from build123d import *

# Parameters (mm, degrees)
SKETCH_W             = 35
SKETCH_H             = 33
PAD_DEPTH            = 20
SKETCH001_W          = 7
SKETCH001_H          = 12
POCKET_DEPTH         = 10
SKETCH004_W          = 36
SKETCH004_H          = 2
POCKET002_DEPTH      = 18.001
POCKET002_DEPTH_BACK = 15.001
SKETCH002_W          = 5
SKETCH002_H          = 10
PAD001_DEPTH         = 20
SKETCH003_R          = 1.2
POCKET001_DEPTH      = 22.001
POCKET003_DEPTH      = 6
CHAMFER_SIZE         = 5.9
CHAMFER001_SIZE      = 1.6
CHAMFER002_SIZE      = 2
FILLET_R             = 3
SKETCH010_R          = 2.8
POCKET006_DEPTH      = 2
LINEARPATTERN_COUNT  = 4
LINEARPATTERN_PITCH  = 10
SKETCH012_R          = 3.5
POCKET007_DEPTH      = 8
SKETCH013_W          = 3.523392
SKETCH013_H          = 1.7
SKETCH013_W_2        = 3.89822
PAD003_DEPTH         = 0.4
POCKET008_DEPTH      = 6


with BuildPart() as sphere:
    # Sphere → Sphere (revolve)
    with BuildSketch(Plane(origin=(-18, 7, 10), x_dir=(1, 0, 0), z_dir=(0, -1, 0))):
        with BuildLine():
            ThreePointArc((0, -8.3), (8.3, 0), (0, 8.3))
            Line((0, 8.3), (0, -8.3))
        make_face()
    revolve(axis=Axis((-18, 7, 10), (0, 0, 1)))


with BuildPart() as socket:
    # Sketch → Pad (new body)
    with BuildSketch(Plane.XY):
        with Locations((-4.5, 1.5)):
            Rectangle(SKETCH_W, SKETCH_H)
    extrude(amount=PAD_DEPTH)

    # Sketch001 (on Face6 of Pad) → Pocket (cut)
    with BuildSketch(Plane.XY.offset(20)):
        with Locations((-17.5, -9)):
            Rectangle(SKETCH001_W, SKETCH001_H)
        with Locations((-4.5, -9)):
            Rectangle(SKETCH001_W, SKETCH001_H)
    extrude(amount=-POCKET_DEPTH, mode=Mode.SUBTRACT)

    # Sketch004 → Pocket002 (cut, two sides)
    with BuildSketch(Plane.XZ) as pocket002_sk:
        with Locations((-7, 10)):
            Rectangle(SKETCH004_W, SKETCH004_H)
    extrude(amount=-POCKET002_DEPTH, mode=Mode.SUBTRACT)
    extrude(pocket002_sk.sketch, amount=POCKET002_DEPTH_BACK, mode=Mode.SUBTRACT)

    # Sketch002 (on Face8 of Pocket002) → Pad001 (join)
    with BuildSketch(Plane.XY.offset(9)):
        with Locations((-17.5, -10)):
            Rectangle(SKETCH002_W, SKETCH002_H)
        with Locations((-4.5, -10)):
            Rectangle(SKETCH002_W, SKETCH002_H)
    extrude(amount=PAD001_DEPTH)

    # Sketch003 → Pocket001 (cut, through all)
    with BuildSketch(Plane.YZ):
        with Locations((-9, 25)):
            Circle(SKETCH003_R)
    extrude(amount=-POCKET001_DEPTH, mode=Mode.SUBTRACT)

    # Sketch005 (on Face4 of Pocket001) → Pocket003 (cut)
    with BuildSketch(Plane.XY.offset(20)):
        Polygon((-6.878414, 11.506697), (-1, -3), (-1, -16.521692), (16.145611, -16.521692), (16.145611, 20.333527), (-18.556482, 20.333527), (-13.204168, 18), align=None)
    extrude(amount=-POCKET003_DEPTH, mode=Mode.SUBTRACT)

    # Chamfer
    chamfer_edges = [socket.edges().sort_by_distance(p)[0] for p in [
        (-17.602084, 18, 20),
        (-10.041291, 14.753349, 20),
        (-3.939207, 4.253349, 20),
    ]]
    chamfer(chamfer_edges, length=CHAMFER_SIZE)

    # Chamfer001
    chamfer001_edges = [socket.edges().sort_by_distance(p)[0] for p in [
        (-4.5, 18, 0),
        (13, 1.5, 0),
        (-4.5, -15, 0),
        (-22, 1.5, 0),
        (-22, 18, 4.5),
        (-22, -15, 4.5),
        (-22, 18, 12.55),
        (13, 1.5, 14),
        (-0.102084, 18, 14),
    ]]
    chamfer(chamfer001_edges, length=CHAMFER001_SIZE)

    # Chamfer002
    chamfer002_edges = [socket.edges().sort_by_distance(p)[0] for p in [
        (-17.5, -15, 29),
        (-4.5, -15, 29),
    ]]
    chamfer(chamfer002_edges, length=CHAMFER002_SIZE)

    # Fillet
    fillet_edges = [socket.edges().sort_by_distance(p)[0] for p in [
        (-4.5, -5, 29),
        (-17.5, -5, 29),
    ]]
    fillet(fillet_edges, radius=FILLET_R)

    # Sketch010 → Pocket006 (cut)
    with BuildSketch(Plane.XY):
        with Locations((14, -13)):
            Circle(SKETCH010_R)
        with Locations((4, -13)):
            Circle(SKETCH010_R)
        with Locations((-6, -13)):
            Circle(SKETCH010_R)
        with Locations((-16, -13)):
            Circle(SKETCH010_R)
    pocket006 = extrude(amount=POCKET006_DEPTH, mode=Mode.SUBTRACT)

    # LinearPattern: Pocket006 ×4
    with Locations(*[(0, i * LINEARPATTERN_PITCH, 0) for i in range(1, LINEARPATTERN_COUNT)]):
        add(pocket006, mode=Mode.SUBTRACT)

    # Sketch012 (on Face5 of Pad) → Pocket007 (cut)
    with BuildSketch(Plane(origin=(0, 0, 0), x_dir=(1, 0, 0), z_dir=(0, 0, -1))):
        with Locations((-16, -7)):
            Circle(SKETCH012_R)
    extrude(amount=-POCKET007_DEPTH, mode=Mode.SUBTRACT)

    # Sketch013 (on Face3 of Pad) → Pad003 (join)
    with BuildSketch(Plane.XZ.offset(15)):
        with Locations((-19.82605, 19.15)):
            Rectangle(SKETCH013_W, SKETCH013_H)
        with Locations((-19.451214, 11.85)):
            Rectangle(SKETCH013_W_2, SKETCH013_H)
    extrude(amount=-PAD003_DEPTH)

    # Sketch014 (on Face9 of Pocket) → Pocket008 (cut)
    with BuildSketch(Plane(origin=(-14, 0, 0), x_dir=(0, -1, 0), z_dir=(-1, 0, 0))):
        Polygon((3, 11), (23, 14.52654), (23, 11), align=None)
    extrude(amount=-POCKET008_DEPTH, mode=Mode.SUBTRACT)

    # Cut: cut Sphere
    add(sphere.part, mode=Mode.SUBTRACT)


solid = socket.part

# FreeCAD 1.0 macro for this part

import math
import FreeCAD as App
import Part
import Sketcher

V = App.Vector
Q = App.Units.Quantity


def edges_at(feature, points):
    """Names of the edges that pass closest to the given points."""
    edges = feature.Shape.Edges
    near = lambda p: min(range(len(edges)), key=lambda i: edges[i].distToShape(Part.Vertex(*p))[0])
    return sorted({f"Edge{near(p) + 1}" for p in points})


def add_polygon(sketch, points):
    """Adds a closed chain of lines whose ends are joined by coincident constraints."""
    first, n = sketch.GeometryCount, len(points)
    for a, b in zip(points, points[1:] + points[:1]):
        sketch.addGeometry(Part.LineSegment(App.Vector(*a, 0), App.Vector(*b, 0)), False)
    for i in range(n):
        sketch.addConstraint(Sketcher.Constraint("Coincident", first + i, 2, first + (i + 1) % n, 1))

doc = App.newDocument("Part")
body = doc.addObject("PartDesign::Body", "Body")

# Sketch on XZ plane
sketch1 = doc.addObject("Sketcher::SketchObject", "Sketch")
body.addObject(sketch1)
sketch1.AttachmentSupport = (doc.XZ_Plane, [""])
sketch1.MapMode = "FlatFace"
sketch1.AttachmentOffset = App.Placement(V(0, 0, -7), App.Rotation())
sketch1.addGeometry([
    Part.ArcOfCircle(Part.Circle(V(-18, 10, 0), V(0, 0, 1), 8), math.radians(-90), math.radians(90)),
    Part.LineSegment(V(-18, 18, 0), V(-18, 2, 0)),
], False)
sketch1.addGeometry(Part.LineSegment(V(-18, 2, 0), V(-18, 18, 0)), True)  # axis
sketch1.addConstraint([
    Sketcher.Constraint("Coincident", 0, 1, 1, 2),
    Sketcher.Constraint("Coincident", 1, 1, 0, 2),
    Sketcher.Constraint("Vertical", 1),
    Sketcher.Constraint("Vertical", 2),
    Sketcher.Constraint("Coincident", 2, 1, 0, 1),
    Sketcher.Constraint("Equal", 1, 2),
    Sketcher.Constraint("Radius", 0, Q("8.3 mm")),
    Sketcher.Constraint("DistanceX", 0, 3, -1, 1, Q("18 mm")),
    Sketcher.Constraint("DistanceY", -1, 1, 0, 3, Q("10 mm")),
    Sketcher.Constraint("DistanceX", 0, 1, -1, 1, Q("18 mm")),
])
revolution = doc.addObject("PartDesign::Revolution", "Revolution")
body.addObject(revolution)
revolution.Profile = sketch1
revolution.ReferenceAxis = (sketch1, ["Axis0"])
revolution.Angle = 360
body2 = doc.addObject("PartDesign::Body", "Body001")

# Sketch on XY plane
sketch2 = doc.addObject("Sketcher::SketchObject", "Sketch001")
body2.addObject(sketch2)
sketch2.AttachmentSupport = (doc.getObject("XY_Plane001"), [""])
sketch2.MapMode = "FlatFace"
add_polygon(sketch2, [(-22, 18), (-22, -15), (13, -15), (13, 18)])  # lines 0-3
sketch2.addConstraint([
    Sketcher.Constraint("Vertical", 0),
    Sketcher.Constraint("Horizontal", 1),
    Sketcher.Constraint("Vertical", 2),
    Sketcher.Constraint("Horizontal", 3),
    Sketcher.Constraint("DistanceX", 1, 1, 1, 2, Q("35 mm")),
    Sketcher.Constraint("DistanceY", 0, 2, 0, 1, Q("33 mm")),
    Sketcher.Constraint("DistanceX", 0, 2, -1, 1, Q("22 mm")),
    Sketcher.Constraint("DistanceY", 0, 2, -1, 1, Q("15 mm")),
])
pad1 = doc.addObject("PartDesign::Pad", "Pad")
body2.addObject(pad1)
pad1.Profile = sketch2
pad1.Length = 20

# Sketch on XY plane
sketch3 = doc.addObject("Sketcher::SketchObject", "Sketch002")
body2.addObject(sketch3)
sketch3.AttachmentSupport = (doc.getObject("XY_Plane001"), [""])
sketch3.MapMode = "FlatFace"
sketch3.AttachmentOffset = App.Placement(V(0, 0, 20), App.Rotation())
add_polygon(sketch3, [(-21, -3), (-21, -15), (-14, -15), (-14, -3)])  # lines 0-3
add_polygon(sketch3, [(-8, -3), (-8, -15), (-1, -15), (-1, -3)])  # lines 4-7
sketch3.addConstraint([
    Sketcher.Constraint("Vertical", 0),
    Sketcher.Constraint("Horizontal", 1),
    Sketcher.Constraint("Vertical", 2),
    Sketcher.Constraint("Horizontal", 3),
    Sketcher.Constraint("Vertical", 4),
    Sketcher.Constraint("Horizontal", 5),
    Sketcher.Constraint("Vertical", 6),
    Sketcher.Constraint("Horizontal", 7),
    Sketcher.Constraint("Horizontal", 1, 2, 4, 2),
    Sketcher.Constraint("Horizontal", 3, 2, 6, 2),
    Sketcher.Constraint("Equal", 3, 5),
    Sketcher.Constraint("DistanceX", 1, 1, 1, 2, Q("7 mm")),
    Sketcher.Constraint("DistanceY", 0, 2, 0, 1, Q("12 mm")),
    Sketcher.Constraint("DistanceX", 0, 2, -1, 1, Q("21 mm")),
    Sketcher.Constraint("DistanceY", 0, 2, -1, 1, Q("15 mm")),
    Sketcher.Constraint("DistanceX", 4, 2, -1, 1, Q("8 mm")),
])
pocket1 = doc.addObject("PartDesign::Pocket", "Pocket")
body2.addObject(pocket1)
pocket1.Profile = sketch3
pocket1.Length = 10

# Sketch on XZ plane
sketch4 = doc.addObject("Sketcher::SketchObject", "Sketch003")
body2.addObject(sketch4)
sketch4.AttachmentSupport = (doc.getObject("XZ_Plane001"), [""])
sketch4.MapMode = "FlatFace"
add_polygon(sketch4, [(-25, 11), (-25, 9), (11, 9), (11, 11)])  # lines 0-3
sketch4.addConstraint([
    Sketcher.Constraint("Vertical", 0),
    Sketcher.Constraint("Horizontal", 1),
    Sketcher.Constraint("Vertical", 2),
    Sketcher.Constraint("Horizontal", 3),
    Sketcher.Constraint("DistanceX", 1, 1, 1, 2, Q("36 mm")),
    Sketcher.Constraint("DistanceY", 0, 2, 0, 1, Q("2 mm")),
    Sketcher.Constraint("DistanceX", 0, 2, -1, 1, Q("25 mm")),
    Sketcher.Constraint("DistanceY", -1, 1, 0, 2, Q("9 mm")),
])
pocket2 = doc.addObject("PartDesign::Pocket", "Pocket001")
body2.addObject(pocket2)
pocket2.Profile = sketch4
pocket2.Type = "ThroughAll"
pocket2.Midplane = True

# Sketch on XY plane
sketch5 = doc.addObject("Sketcher::SketchObject", "Sketch004")
body2.addObject(sketch5)
sketch5.AttachmentSupport = (doc.getObject("XY_Plane001"), [""])
sketch5.MapMode = "FlatFace"
sketch5.AttachmentOffset = App.Placement(V(0, 0, 9), App.Rotation())
add_polygon(sketch5, [(-20, -5), (-20, -15), (-15, -15), (-15, -5)])  # lines 0-3
add_polygon(sketch5, [(-7, -5), (-7, -15), (-2, -15), (-2, -5)])  # lines 4-7
sketch5.addConstraint([
    Sketcher.Constraint("Vertical", 0),
    Sketcher.Constraint("Horizontal", 1),
    Sketcher.Constraint("Vertical", 2),
    Sketcher.Constraint("Horizontal", 3),
    Sketcher.Constraint("Vertical", 4),
    Sketcher.Constraint("Horizontal", 5),
    Sketcher.Constraint("Vertical", 6),
    Sketcher.Constraint("Horizontal", 7),
    Sketcher.Constraint("Horizontal", 1, 2, 4, 2),
    Sketcher.Constraint("Horizontal", 3, 2, 6, 2),
    Sketcher.Constraint("Equal", 3, 5),
    Sketcher.Constraint("DistanceX", 1, 1, 1, 2, Q("5 mm")),
    Sketcher.Constraint("DistanceY", 0, 2, 0, 1, Q("10 mm")),
    Sketcher.Constraint("DistanceX", 0, 2, -1, 1, Q("20 mm")),
    Sketcher.Constraint("DistanceY", 0, 2, -1, 1, Q("15 mm")),
    Sketcher.Constraint("DistanceX", 4, 2, -1, 1, Q("7 mm")),
])
pad2 = doc.addObject("PartDesign::Pad", "Pad001")
body2.addObject(pad2)
pad2.Profile = sketch5
pad2.Length = 20

# Sketch on YZ plane
sketch6 = doc.addObject("Sketcher::SketchObject", "Sketch005")
body2.addObject(sketch6)
sketch6.AttachmentSupport = (doc.getObject("YZ_Plane001"), [""])
sketch6.MapMode = "FlatFace"
sketch6.addGeometry(Part.Circle(V(-9, 25, 0), V(0, 0, 1), 1.2), False)
sketch6.addConstraint([
    Sketcher.Constraint("Diameter", 0, Q("2.4 mm")),
    Sketcher.Constraint("DistanceX", 0, 3, -1, 1, Q("9 mm")),
    Sketcher.Constraint("DistanceY", -1, 1, 0, 3, Q("25 mm")),
])
pocket3 = doc.addObject("PartDesign::Pocket", "Pocket002")
body2.addObject(pocket3)
pocket3.Profile = sketch6
pocket3.Type = "ThroughAll"

# Sketch on XY plane
sketch7 = doc.addObject("Sketcher::SketchObject", "Sketch006")
body2.addObject(sketch7)
sketch7.AttachmentSupport = (doc.getObject("XY_Plane001"), [""])
sketch7.MapMode = "FlatFace"
sketch7.AttachmentOffset = App.Placement(V(0, 0, 20), App.Rotation())
add_polygon(sketch7, [(-7, 12), (-1, -3), (-1, -17), (16, -17), (16, 20), (-19, 20), (-13, 18)])  # lines 0-6
sketch7.addConstraint([
    Sketcher.Constraint("Vertical", 1),
    Sketcher.Constraint("Horizontal", 2),
    Sketcher.Constraint("Vertical", 3),
    Sketcher.Constraint("Horizontal", 4),
    Sketcher.Constraint("DistanceX", 0, 2, -1, 1, Q("1 mm")),
    Sketcher.Constraint("DistanceY", 0, 2, -1, 1, Q("3 mm")),
    Sketcher.Constraint("DistanceY", -1, 1, 5, 2, Q("18 mm")),
    Sketcher.Constraint("DistanceX", 2, 1, 2, 2, Q("17.145611 mm")),
    Sketcher.Constraint("DistanceY", 3, 1, 3, 2, Q("36.855219 mm")),
    Sketcher.Constraint("Distance", 5, Q("5.838888 mm")),
    Sketcher.Constraint("DistanceX", 4, 2, 4, 1, Q("34.702093 mm")),
    Sketcher.Constraint("DistanceY", 1, 2, 1, 1, Q("13.521692 mm")),
    Sketcher.Constraint("DistanceY", 6, 2, 4, 2, Q("8.82683 mm")),
    Sketcher.Constraint("Distance", 0, Q("15.652476 mm")),
])
pocket4 = doc.addObject("PartDesign::Pocket", "Pocket003")
body2.addObject(pocket4)
pocket4.Profile = sketch7
pocket4.Length = 6
doc.recompute()

chamfer = doc.addObject("PartDesign::Chamfer", "Chamfer")
body2.addObject(chamfer)
chamfer.Base = (pocket4, edges_at(pocket4, [(-17.602, 18, 20), (-10.041, 14.753, 20), (-3.939, 4.253, 20)]))
chamfer.Size = 5.9
doc.recompute()

chamfer2 = doc.addObject("PartDesign::Chamfer", "Chamfer001")
body2.addObject(chamfer2)
chamfer2.Base = (chamfer, edges_at(chamfer, [
    (-4.5, 18, 0),
    (13, 1.5, 0),
    (-4.5, -15, 0),
    (-22, 1.5, 0),
    (-22, 18, 4.5),
    (-22, -15, 4.5),
    (-22, 18, 12.55),
    (13, 1.5, 14),
    (-0.102, 18, 14),
]))
chamfer2.Size = 1.6
doc.recompute()

chamfer3 = doc.addObject("PartDesign::Chamfer", "Chamfer002")
body2.addObject(chamfer3)
chamfer3.Base = (chamfer2, edges_at(chamfer2, [(-17.5, -15, 29), (-4.5, -15, 29)]))
chamfer3.Size = 2
doc.recompute()

fillet = doc.addObject("PartDesign::Fillet", "Fillet")
body2.addObject(fillet)
fillet.Base = (chamfer3, edges_at(chamfer3, [(-4.5, -5, 29), (-17.5, -5, 29)]))
fillet.Radius = 3

# Sketch on XY plane
sketch8 = doc.addObject("Sketcher::SketchObject", "Sketch007")
body2.addObject(sketch8)
sketch8.AttachmentSupport = (doc.getObject("XY_Plane001"), [""])
sketch8.MapMode = "FlatFace"
sketch8.addGeometry([
    Part.Circle(V(14, -13, 0), V(0, 0, 1), 2.8),
    Part.Circle(V(4, -13, 0), V(0, 0, 1), 2.8),
    Part.Circle(V(-6, -13, 0), V(0, 0, 1), 2.8),
    Part.Circle(V(-16, -13, 0), V(0, 0, 1), 2.8),
], False)
sketch8.addConstraint([
    Sketcher.Constraint("Equal", 0, 1),
    Sketcher.Constraint("Equal", 1, 2),
    Sketcher.Constraint("Equal", 2, 3),
    Sketcher.Constraint("Horizontal", 0, 3, 1, 3),
    Sketcher.Constraint("Horizontal", 1, 3, 2, 3),
    Sketcher.Constraint("Horizontal", 2, 3, 3, 3),
    Sketcher.Constraint("Diameter", 0, Q("5.6 mm")),
    Sketcher.Constraint("DistanceX", -1, 1, 0, 3, Q("14 mm")),
    Sketcher.Constraint("DistanceY", 0, 3, -1, 1, Q("13 mm")),
    Sketcher.Constraint("DistanceX", -1, 1, 1, 3, Q("4 mm")),
    Sketcher.Constraint("DistanceX", 2, 3, -1, 1, Q("6 mm")),
    Sketcher.Constraint("DistanceX", 3, 3, -1, 1, Q("16 mm")),
])
pocket5 = doc.addObject("PartDesign::Pocket", "Pocket004")
body2.addObject(pocket5)
pocket5.Profile = sketch8
pocket5.Length = 2
pocket5.Reversed = True
doc.recompute()

linearpattern = doc.addObject("PartDesign::LinearPattern", "LinearPattern")
body2.addObject(linearpattern)
linearpattern.Originals = [pocket5]
linearpattern.Direction = (doc.getObject("Y_Axis001"), [""])
linearpattern.Mode = "offset"
linearpattern.Offset = 10
linearpattern.Occurrences = 4
body2.Tip = linearpattern

# Sketch on XY plane
sketch9 = doc.addObject("Sketcher::SketchObject", "Sketch008")
body2.addObject(sketch9)
sketch9.AttachmentSupport = (doc.getObject("XY_Plane001"), [""])
sketch9.MapMode = "FlatFace"
sketch9.addGeometry(Part.Circle(V(-16, 7, 0), V(0, 0, 1), 3.5), False)
sketch9.addConstraint([
    Sketcher.Constraint("Diameter", 0, Q("7 mm")),
    Sketcher.Constraint("DistanceX", 0, 3, -1, 1, Q("16 mm")),
    Sketcher.Constraint("DistanceY", -1, 1, 0, 3, Q("7 mm")),
])
pocket6 = doc.addObject("PartDesign::Pocket", "Pocket005")
body2.addObject(pocket6)
pocket6.Profile = sketch9
pocket6.Length = 8
pocket6.Reversed = True

# Sketch on XZ plane
sketch10 = doc.addObject("Sketcher::SketchObject", "Sketch009")
body2.addObject(sketch10)
sketch10.AttachmentSupport = (doc.getObject("XZ_Plane001"), [""])
sketch10.MapMode = "FlatFace"
sketch10.AttachmentOffset = App.Placement(V(0, 0, 15), App.Rotation())
add_polygon(sketch10, [(-21.6, 20), (-21.6, 18.3), (-18.1, 18.3), (-18.1, 20)])  # lines 0-3
add_polygon(sketch10, [(-21.4, 12.7), (-21.4, 11), (-17.5, 11), (-17.5, 12.7)])  # lines 4-7
sketch10.addConstraint([
    Sketcher.Constraint("Vertical", 0),
    Sketcher.Constraint("Horizontal", 1),
    Sketcher.Constraint("Vertical", 2),
    Sketcher.Constraint("Horizontal", 3),
    Sketcher.Constraint("Vertical", 4),
    Sketcher.Constraint("Horizontal", 5),
    Sketcher.Constraint("Vertical", 6),
    Sketcher.Constraint("Horizontal", 7),
    Sketcher.Constraint("Equal", 2, 4),
    Sketcher.Constraint("DistanceY", 0, 2, 0, 1, Q("1.7 mm")),
    Sketcher.Constraint("DistanceY", -1, 1, 2, 2, Q("20 mm")),
    Sketcher.Constraint("DistanceY", -1, 1, 4, 2, Q("11 mm")),
    Sketcher.Constraint("DistanceX", 1, 1, 1, 2, Q("3.523392 mm")),
    Sketcher.Constraint("DistanceX", 5, 1, 5, 2, Q("3.89822 mm")),
    Sketcher.Constraint("DistanceX", 0, 2, 4, 2, Q("0.187422 mm")),
    Sketcher.Constraint("DistanceX", 0, 2, -1, 1, Q("21.587746 mm")),
])
pad3 = doc.addObject("PartDesign::Pad", "Pad002")
body2.addObject(pad3)
pad3.Profile = sketch10
pad3.Length = 0.4
pad3.Reversed = True

# Sketch on YZ plane
sketch11 = doc.addObject("Sketcher::SketchObject", "Sketch010")
body2.addObject(sketch11)
sketch11.AttachmentSupport = (doc.getObject("YZ_Plane001"), [""])
sketch11.MapMode = "FlatFace"
sketch11.AttachmentOffset = App.Placement(V(0, 0, -14), App.Rotation())
add_polygon(sketch11, [(-23, 14.5), (-3, 11), (-23, 11)])  # lines 0-2
sketch11.addConstraint([
    Sketcher.Constraint("Horizontal", 1),
    Sketcher.Constraint("Vertical", 2),
    Sketcher.Constraint("DistanceX", 1, 2, 1, 1, Q("20 mm")),
    Sketcher.Constraint("Angle", 0, Q("-10.000001 deg")),
    Sketcher.Constraint("DistanceX", 0, 2, -1, 1, Q("3 mm")),
    Sketcher.Constraint("DistanceY", -1, 1, 0, 2, Q("11 mm")),
])
pocket7 = doc.addObject("PartDesign::Pocket", "Pocket006")
body2.addObject(pocket7)
pocket7.Profile = sketch11
pocket7.Length = 6
pocket7.Reversed = True
doc.recompute()

boolean = doc.addObject("PartDesign::Boolean", "Boolean")
body2.addObject(boolean)
boolean.Type = "Cut"
boolean.addObjects([body])

doc.recompute()
